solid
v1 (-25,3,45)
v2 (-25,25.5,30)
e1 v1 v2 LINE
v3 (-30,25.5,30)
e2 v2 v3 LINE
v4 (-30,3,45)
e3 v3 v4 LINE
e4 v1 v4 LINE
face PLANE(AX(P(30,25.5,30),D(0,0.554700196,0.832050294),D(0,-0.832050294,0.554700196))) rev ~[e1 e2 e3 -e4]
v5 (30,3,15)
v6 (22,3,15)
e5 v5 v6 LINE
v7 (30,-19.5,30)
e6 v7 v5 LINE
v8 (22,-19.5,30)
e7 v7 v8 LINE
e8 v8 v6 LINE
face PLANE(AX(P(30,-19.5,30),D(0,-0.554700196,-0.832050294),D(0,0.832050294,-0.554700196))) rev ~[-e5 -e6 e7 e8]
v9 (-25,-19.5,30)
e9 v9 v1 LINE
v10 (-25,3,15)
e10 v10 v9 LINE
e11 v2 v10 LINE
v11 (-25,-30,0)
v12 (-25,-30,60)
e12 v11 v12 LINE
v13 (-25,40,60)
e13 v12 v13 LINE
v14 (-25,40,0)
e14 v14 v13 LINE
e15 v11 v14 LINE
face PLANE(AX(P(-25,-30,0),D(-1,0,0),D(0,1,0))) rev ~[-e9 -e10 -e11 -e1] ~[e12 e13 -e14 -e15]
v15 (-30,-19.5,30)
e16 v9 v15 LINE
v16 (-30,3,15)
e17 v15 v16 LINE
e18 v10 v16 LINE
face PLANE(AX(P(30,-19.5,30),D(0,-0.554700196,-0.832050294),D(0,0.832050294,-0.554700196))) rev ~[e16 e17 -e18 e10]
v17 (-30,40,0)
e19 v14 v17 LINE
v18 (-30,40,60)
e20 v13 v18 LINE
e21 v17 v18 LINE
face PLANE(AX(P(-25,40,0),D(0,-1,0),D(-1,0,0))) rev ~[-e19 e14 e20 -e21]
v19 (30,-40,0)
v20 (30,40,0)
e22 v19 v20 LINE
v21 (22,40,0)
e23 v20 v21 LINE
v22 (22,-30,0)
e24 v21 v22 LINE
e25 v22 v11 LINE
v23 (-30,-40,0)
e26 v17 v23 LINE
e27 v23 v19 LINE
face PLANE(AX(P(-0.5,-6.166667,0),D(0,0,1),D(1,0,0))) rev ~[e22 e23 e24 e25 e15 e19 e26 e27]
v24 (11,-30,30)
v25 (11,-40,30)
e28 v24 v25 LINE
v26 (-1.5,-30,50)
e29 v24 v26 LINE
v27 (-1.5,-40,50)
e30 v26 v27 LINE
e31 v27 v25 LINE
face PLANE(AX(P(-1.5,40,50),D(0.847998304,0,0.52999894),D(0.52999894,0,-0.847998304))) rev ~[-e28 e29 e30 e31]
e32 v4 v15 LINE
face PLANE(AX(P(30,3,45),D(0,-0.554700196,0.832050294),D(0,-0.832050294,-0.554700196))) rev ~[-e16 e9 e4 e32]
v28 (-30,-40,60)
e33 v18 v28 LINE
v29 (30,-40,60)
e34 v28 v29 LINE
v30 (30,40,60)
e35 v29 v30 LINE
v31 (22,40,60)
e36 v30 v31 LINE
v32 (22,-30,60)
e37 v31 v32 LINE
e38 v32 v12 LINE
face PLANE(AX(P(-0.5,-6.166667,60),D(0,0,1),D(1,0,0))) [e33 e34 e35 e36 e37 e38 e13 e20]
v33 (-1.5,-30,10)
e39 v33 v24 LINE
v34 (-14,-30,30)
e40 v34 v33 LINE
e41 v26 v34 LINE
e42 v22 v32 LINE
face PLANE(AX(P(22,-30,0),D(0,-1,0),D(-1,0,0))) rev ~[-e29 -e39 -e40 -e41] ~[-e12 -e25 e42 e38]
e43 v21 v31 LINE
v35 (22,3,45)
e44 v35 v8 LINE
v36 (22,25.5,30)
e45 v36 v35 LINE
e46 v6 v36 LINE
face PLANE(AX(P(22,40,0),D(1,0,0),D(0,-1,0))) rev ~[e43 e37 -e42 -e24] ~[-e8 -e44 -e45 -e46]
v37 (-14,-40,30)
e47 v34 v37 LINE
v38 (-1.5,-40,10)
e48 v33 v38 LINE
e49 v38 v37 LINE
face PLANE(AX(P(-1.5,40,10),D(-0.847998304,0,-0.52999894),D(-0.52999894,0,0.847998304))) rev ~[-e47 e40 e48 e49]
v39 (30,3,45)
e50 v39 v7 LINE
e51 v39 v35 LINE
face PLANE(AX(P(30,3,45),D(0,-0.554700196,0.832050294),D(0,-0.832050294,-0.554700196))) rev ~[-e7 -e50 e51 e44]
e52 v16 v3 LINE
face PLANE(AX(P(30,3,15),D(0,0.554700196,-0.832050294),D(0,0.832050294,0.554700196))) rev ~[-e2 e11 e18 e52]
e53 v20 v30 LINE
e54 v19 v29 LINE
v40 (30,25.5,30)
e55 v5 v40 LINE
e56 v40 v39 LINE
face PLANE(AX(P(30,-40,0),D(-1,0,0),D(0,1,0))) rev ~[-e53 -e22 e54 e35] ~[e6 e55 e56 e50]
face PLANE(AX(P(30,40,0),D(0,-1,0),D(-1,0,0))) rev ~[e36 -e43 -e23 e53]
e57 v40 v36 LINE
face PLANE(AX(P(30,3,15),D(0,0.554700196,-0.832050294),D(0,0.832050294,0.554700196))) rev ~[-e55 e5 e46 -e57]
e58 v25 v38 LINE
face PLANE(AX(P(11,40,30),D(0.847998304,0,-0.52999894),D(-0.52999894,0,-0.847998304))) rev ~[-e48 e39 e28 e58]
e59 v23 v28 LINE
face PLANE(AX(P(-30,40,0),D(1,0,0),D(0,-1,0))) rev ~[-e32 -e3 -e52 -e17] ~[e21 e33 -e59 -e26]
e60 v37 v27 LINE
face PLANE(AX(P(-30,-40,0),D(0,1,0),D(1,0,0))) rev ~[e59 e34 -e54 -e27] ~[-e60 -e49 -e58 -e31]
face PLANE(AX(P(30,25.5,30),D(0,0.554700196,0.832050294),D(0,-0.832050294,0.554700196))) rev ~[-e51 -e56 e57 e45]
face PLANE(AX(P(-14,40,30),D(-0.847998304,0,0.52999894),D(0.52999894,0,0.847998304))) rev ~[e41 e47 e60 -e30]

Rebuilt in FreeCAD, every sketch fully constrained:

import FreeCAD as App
import Part
import Sketcher

V = App.Vector

doc = App.newDocument("Part")
body = doc.addObject("PartDesign::Body", "Body")

sketch1 = body.newObject("Sketcher::SketchObject", "Sketch")
sketch1.AttachmentSupport = (doc.getObject("XY_Plane"), [""])
sketch1.MapMode = "FlatFace"
sketch1.addGeometry([
    Part.LineSegment(V(-30, 40, 0), V(-30, -40, 0)),
    Part.LineSegment(V(-30, -40, 0), V(30, -40, 0)),
    Part.LineSegment(V(30, -40, 0), V(30, 40, 0)),
    Part.LineSegment(V(30, 40, 0), V(22, 40, 0)),
    Part.LineSegment(V(22, 40, 0), V(22, -30, 0)),
    Part.LineSegment(V(22, -30, 0), V(-25, -30, 0)),
    Part.LineSegment(V(-25, -30, 0), V(-25, 40, 0)),
    Part.LineSegment(V(-25, 40, 0), V(-30, 40, 0)),
], False)
sketch1.addConstraint([
    Sketcher.Constraint("Coincident", 0, 2, 1, 1),
    Sketcher.Constraint("Coincident", 1, 2, 2, 1),
    Sketcher.Constraint("Coincident", 2, 2, 3, 1),
    Sketcher.Constraint("Coincident", 3, 2, 4, 1),
    Sketcher.Constraint("Coincident", 4, 2, 5, 1),
    Sketcher.Constraint("Coincident", 5, 2, 6, 1),
    Sketcher.Constraint("Coincident", 6, 2, 7, 1),
    Sketcher.Constraint("Coincident", 7, 2, 0, 1),
    Sketcher.Constraint("Vertical", 0),
    Sketcher.Constraint("Horizontal", 1),
    Sketcher.Constraint("Vertical", 2),
    Sketcher.Constraint("Horizontal", 3),
    Sketcher.Constraint("Vertical", 4),
    Sketcher.Constraint("Horizontal", 5),
    Sketcher.Constraint("Vertical", 6),
    Sketcher.Constraint("Horizontal", 7),
    Sketcher.Constraint("Symmetric", 0, 2, 2, 2, -1, 1),
    Sketcher.Constraint("Horizontal", 3, 2, 6, 2),
    Sketcher.Constraint("DistanceX", 1, 1, 1, 2, 60.0),
    Sketcher.Constraint("DistanceX", 3, 2, 3, 1, 8.0),
    Sketcher.Constraint("DistanceX", 5, 2, 5, 1, 47.0),
    Sketcher.Constraint("DistanceY", 0, 2, 0, 1, 80.0),
    Sketcher.Constraint("DistanceY", 4, 2, 4, 1, 70.0),
])
pad1 = body.newObject("PartDesign::Pad", "Pad")
pad1.Profile = sketch1
pad1.Length = 60

sketch2 = body.newObject("Sketcher::SketchObject", "Sketch001")
sketch2.AttachmentSupport = (doc.getObject("YZ_Plane"), [""])
sketch2.MapMode = "FlatFace"
sketch2.AttachmentOffset = App.Placement(V(0, 0, 30), App.Rotation())
sketch2.addGeometry([
    Part.LineSegment(V(3, 45, 0), V(-20, 30, 0)),
    Part.LineSegment(V(-20, 30, 0), V(3, 15, 0)),
    Part.LineSegment(V(3, 15, 0), V(26, 30, 0)),
    Part.LineSegment(V(26, 30, 0), V(3, 45, 0)),
], False)
sketch2.addConstraint([
    Sketcher.Constraint("Coincident", 0, 2, 1, 1),
    Sketcher.Constraint("Coincident", 1, 2, 2, 1),
    Sketcher.Constraint("Coincident", 2, 2, 3, 1),
    Sketcher.Constraint("Coincident", 3, 2, 0, 1),
    Sketcher.Constraint("Parallel", 0, 2),
    Sketcher.Constraint("Parallel", 1, 3),
    Sketcher.Constraint("Horizontal", 0, 2, 2, 2),
    Sketcher.Constraint("Vertical", 1, 2, 3, 2),
    Sketcher.Constraint("DistanceY", -1, 1, 0, 2, 30.0),
    Sketcher.Constraint("DistanceX", -1, 1, 1, 2, 3.0),
    Sketcher.Constraint("DistanceY", -1, 1, 1, 2, 15.0),
    Sketcher.Constraint("DistanceX", 0, 2, 2, 2, 45.0),
])
pocket1 = body.newObject("PartDesign::Pocket", "Pocket")
pocket1.Profile = sketch2
pocket1.Type = "ThroughAll"

sketch3 = body.newObject("Sketcher::SketchObject", "Sketch002")
sketch3.AttachmentSupport = (doc.getObject("XZ_Plane"), [""])
sketch3.MapMode = "FlatFace"
sketch3.AttachmentOffset = App.Placement(V(0, 0, -40), App.Rotation())
sketch3.addGeometry([
    Part.LineSegment(V(-14, 30, 0), V(-2, 50, 0)),
    Part.LineSegment(V(-2, 50, 0), V(11, 30, 0)),
    Part.LineSegment(V(11, 30, 0), V(-2, 10, 0)),
    Part.LineSegment(V(-2, 10, 0), V(-14, 30, 0)),
], False)
sketch3.addConstraint([
    Sketcher.Constraint("Coincident", 0, 2, 1, 1),
    Sketcher.Constraint("Coincident", 1, 2, 2, 1),
    Sketcher.Constraint("Coincident", 2, 2, 3, 1),
    Sketcher.Constraint("Coincident", 3, 2, 0, 1),
    Sketcher.Constraint("Parallel", 0, 2),
    Sketcher.Constraint("Parallel", 1, 3),
    Sketcher.Constraint("Horizontal", 1, 2, 3, 2),
    Sketcher.Constraint("Vertical", 0, 2, 2, 2),
    Sketcher.Constraint("DistanceY", -1, 1, 0, 2, 50.0),
    Sketcher.Constraint("DistanceX", -1, 1, 1, 2, 11.0),
    Sketcher.Constraint("DistanceY", -1, 1, 1, 2, 30.0),
    Sketcher.Constraint("DistanceX", 3, 2, -1, 1, 14.0),
])
pocket2 = body.newObject("PartDesign::Pocket", "Pocket001")
pocket2.Profile = sketch3
pocket2.Type = "ThroughAll"
pocket2.Reversed = True

doc.recompute()
